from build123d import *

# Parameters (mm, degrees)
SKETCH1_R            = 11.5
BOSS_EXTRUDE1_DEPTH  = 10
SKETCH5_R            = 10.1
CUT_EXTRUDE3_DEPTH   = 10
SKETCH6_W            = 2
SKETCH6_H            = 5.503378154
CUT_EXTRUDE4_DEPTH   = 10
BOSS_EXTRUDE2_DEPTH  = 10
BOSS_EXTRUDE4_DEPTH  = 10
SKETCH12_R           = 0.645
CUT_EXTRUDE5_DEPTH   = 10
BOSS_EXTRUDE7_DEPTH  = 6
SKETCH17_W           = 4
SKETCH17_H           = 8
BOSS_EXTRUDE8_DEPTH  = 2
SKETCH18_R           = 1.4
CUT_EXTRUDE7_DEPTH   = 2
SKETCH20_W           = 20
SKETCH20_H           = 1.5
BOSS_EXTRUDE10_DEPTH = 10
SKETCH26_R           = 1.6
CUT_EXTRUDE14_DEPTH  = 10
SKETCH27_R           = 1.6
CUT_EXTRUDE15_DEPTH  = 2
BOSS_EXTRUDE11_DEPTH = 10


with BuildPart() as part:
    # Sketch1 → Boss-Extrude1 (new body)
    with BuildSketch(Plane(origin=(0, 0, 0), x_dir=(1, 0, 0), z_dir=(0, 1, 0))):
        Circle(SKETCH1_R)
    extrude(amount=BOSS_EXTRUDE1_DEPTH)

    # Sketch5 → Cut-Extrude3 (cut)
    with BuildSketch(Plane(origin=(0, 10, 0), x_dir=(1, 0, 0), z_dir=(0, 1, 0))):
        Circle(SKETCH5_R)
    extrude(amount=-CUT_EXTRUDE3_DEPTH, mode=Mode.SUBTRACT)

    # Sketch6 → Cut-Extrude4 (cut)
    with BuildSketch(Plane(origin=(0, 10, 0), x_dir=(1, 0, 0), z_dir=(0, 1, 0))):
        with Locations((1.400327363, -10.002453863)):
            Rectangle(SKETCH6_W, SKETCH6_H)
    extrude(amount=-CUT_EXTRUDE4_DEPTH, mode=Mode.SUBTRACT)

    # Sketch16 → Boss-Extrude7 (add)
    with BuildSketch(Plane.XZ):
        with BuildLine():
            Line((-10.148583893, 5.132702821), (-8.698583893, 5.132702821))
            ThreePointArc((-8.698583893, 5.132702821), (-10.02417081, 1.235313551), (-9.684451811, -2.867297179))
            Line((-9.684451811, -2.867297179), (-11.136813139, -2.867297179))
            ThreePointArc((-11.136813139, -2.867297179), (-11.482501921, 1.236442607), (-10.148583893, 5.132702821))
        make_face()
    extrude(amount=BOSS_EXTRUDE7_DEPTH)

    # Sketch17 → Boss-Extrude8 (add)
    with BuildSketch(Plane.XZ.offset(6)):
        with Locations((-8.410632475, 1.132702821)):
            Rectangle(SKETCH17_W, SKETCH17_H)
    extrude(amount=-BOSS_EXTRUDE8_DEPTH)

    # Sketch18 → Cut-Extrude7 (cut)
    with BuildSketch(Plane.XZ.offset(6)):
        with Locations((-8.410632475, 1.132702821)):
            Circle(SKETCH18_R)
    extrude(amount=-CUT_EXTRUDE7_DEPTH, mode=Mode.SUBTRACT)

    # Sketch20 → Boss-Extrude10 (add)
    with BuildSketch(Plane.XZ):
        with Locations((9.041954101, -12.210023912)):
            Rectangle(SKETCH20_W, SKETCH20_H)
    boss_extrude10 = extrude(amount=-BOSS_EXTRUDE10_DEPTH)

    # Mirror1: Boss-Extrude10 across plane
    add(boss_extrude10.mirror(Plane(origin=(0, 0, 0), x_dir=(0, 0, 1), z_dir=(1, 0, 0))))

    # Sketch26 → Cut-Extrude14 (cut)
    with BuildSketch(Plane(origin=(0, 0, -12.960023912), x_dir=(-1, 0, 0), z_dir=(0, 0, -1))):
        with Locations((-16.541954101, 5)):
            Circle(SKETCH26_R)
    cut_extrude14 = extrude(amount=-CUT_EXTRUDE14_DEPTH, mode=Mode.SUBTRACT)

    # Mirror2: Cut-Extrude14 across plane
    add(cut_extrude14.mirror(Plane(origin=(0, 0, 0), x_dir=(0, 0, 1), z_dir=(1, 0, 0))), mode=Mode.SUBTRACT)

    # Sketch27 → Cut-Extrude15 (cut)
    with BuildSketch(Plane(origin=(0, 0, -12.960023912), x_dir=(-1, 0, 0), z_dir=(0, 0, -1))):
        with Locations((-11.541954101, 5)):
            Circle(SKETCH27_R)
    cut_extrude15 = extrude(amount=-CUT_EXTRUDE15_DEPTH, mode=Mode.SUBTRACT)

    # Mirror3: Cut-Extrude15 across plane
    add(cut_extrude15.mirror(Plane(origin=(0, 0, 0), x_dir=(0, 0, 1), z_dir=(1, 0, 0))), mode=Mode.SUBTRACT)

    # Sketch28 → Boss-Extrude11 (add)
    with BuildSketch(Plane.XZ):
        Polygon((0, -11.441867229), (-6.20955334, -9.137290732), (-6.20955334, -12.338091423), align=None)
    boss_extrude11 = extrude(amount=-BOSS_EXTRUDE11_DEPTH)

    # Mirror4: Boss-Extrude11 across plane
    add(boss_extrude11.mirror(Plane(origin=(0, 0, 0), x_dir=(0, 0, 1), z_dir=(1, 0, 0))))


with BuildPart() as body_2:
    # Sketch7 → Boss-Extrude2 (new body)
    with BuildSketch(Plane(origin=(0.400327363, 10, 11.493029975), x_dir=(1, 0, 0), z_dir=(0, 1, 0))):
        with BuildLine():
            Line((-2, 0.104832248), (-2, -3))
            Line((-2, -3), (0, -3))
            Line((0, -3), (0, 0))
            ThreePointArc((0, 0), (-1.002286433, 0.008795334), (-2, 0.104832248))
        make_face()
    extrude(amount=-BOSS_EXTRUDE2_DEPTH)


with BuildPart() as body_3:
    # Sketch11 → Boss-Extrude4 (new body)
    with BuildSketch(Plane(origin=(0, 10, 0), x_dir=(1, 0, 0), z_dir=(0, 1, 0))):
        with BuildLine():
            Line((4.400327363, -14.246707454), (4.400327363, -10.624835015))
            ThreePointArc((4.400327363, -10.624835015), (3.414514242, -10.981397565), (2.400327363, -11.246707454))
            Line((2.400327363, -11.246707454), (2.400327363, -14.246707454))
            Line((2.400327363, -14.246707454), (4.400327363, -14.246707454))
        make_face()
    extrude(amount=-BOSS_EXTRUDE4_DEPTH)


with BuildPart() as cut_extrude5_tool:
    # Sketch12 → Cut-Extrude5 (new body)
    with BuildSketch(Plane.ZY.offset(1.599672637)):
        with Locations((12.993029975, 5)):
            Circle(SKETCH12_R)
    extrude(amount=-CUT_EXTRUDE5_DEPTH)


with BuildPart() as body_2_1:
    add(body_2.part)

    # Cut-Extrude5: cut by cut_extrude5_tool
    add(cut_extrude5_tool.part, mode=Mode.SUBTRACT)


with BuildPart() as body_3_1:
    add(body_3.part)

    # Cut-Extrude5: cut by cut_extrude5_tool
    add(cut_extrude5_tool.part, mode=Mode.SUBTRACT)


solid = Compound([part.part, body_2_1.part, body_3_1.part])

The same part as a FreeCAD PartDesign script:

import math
import FreeCAD as App
import Part
import Sketcher
from FreeCAD import Vector
Q = App.Units.Quantity

doc = App.newDocument("Part")
body = doc.addObject("PartDesign::Body", "Body")

# Sketch on XZ plane
sketch1 = body.newObject("Sketcher::SketchObject", "Sketch")
sketch1.AttachmentSupport = (doc.getObject("XZ_Plane"), [""])
sketch1.MapMode = "FlatFace"
sketch1.addGeometry(Part.Circle(Vector(0, 0, 0), Vector(0, 0, 1), 12), False)
sketch1.addConstraint([
    Sketcher.Constraint("Coincident", 0, 3, -1, 1),
    Sketcher.Constraint("Diameter", 0, Q("23 mm")),
])
pad1 = body.newObject("PartDesign::Pad", "Pad")
pad1.Profile = sketch1
pad1.Length = 10
pad1.Reversed = True

# Sketch on XZ plane
sketch2 = body.newObject("Sketcher::SketchObject", "Sketch001")
sketch2.AttachmentSupport = (doc.getObject("XZ_Plane"), [""])
sketch2.MapMode = "FlatFace"
sketch2.AttachmentOffset = App.Placement(Vector(0, 0, -10), App.Rotation())
sketch2.addGeometry(Part.Circle(Vector(0, 0, 0), Vector(0, 0, 1), 10), False)
sketch2.addConstraint([
    Sketcher.Constraint("Coincident", 0, 3, -1, 1),
    Sketcher.Constraint("Diameter", 0, Q("20.2 mm")),
])
pocket1 = body.newObject("PartDesign::Pocket", "Pocket")
pocket1.Profile = sketch2
pocket1.Length = 10
pocket1.Reversed = True

# Sketch on XZ plane
sketch3 = body.newObject("Sketcher::SketchObject", "Sketch002")
sketch3.AttachmentSupport = (doc.getObject("XZ_Plane"), [""])
sketch3.MapMode = "FlatFace"
sketch3.AttachmentOffset = App.Placement(Vector(0, 0, -10), App.Rotation())
sketch3.addGeometry([
    Part.LineSegment(Vector(0.4, 7.3, 0), Vector(0.4, 12.8, 0)),
    Part.LineSegment(Vector(0.4, 12.8, 0), Vector(2.4, 12.8, 0)),
    Part.LineSegment(Vector(2.4, 12.8, 0), Vector(2.4, 7.3, 0)),
    Part.LineSegment(Vector(2.4, 7.3, 0), Vector(0.4, 7.3, 0)),
], False)
sketch3.addConstraint([
    Sketcher.Constraint("Coincident", 0, 2, 1, 1),
    Sketcher.Constraint("Coincident", 1, 2, 2, 1),
    Sketcher.Constraint("Coincident", 2, 2, 3, 1),
    Sketcher.Constraint("Coincident", 3, 2, 0, 1),
    Sketcher.Constraint("Vertical", 0),
    Sketcher.Constraint("Horizontal", 1),
    Sketcher.Constraint("Vertical", 2),
    Sketcher.Constraint("Horizontal", 3),
    Sketcher.Constraint("DistanceX", 1, 1, 1, 2, Q("2 mm")),
    Sketcher.Constraint("DistanceY", 0, 1, 0, 2, Q("5.503378 mm")),
    Sketcher.Constraint("DistanceX", -1, 1, 0, 2, Q("0.400327 mm")),
    Sketcher.Constraint("DistanceY", -1, 1, 0, 2, Q("12.754143 mm")),
])
pocket2 = body.newObject("PartDesign::Pocket", "Pocket001")
pocket2.Profile = sketch3
pocket2.Length = 10
pocket2.Reversed = True

# Sketch on XZ plane
sketch4 = body.newObject("Sketcher::SketchObject", "Sketch003")
sketch4.AttachmentSupport = (doc.getObject("XZ_Plane"), [""])
sketch4.MapMode = "FlatFace"
sketch4.addGeometry([
    Part.LineSegment(Vector(-8.7, 5.1, 0), Vector(-10.1, 5.1, 0)),
    Part.ArcOfCircle(Part.Circle(Vector(-1.5, 0, 0), Vector(0, 0, 1), 10), math.radians(149), math.radians(197)),
    Part.LineSegment(Vector(-11.1, -2.9, 0), Vector(-9.7, -2.9, 0)),
    Part.ArcOfCircle(Part.Circle(Vector(0, 0, 0), Vector(0, 0, 1), 10.1), math.radians(149), math.radians(196)),
], False)
sketch4.addConstraint([
    Sketcher.Constraint("Coincident", 0, 2, 1, 1),
    Sketcher.Constraint("Coincident", 1, 2, 2, 1),
    Sketcher.Constraint("Coincident", 2, 2, 3, 2),
    Sketcher.Constraint("Coincident", 3, 1, 0, 1),
    Sketcher.Constraint("Horizontal", 0),
    Sketcher.Constraint("Horizontal", 2),
    Sketcher.Constraint("Coincident", 3, 3, -1, 1),
    Sketcher.Constraint("Radius", 3, Q("10.1 mm")),
    Sketcher.Constraint("DistanceY", 1, 2, 0, 2, Q("8 mm")),
    Sketcher.Constraint("DistanceX", 0, 2, 0, 1, Q("1.45 mm")),
    Sketcher.Constraint("Radius", 1, Q("10.021538 mm")),
    Sketcher.Constraint("DistanceX", 2, 1, 2, 2, Q("1.452361 mm")),
    Sketcher.Constraint("DistanceX", 2, 2, -1, 1, Q("9.684452 mm")),
])
pad2 = body.newObject("PartDesign::Pad", "Pad001")
pad2.Profile = sketch4
pad2.Length = 6

# Sketch on XZ plane
sketch5 = body.newObject("Sketcher::SketchObject", "Sketch004")
sketch5.AttachmentSupport = (doc.getObject("XZ_Plane"), [""])
sketch5.MapMode = "FlatFace"
sketch5.AttachmentOffset = App.Placement(Vector(0, 0, 6), App.Rotation())
sketch5.addGeometry([
    Part.LineSegment(Vector(-10.4, 5.1, 0), Vector(-10.4, -2.9, 0)),
    Part.LineSegment(Vector(-10.4, -2.9, 0), Vector(-6.4, -2.9, 0)),
    Part.LineSegment(Vector(-6.4, -2.9, 0), Vector(-6.4, 5.1, 0)),
    Part.LineSegment(Vector(-6.4, 5.1, 0), Vector(-10.4, 5.1, 0)),
], False)
sketch5.addConstraint([
    Sketcher.Constraint("Coincident", 0, 2, 1, 1),
    Sketcher.Constraint("Coincident", 1, 2, 2, 1),
    Sketcher.Constraint("Coincident", 2, 2, 3, 1),
    Sketcher.Constraint("Coincident", 3, 2, 0, 1),
    Sketcher.Constraint("Vertical", 0),
    Sketcher.Constraint("Horizontal", 1),
    Sketcher.Constraint("Vertical", 2),
    Sketcher.Constraint("Horizontal", 3),
    Sketcher.Constraint("DistanceX", 1, 1, 1, 2, Q("4 mm")),
    Sketcher.Constraint("DistanceY", 0, 2, 0, 1, Q("8 mm")),
    Sketcher.Constraint("DistanceX", 0, 2, -1, 1, Q("10.410632 mm")),
    Sketcher.Constraint("DistanceY", 0, 2, -1, 1, Q("2.867297 mm")),
])
pad3 = body.newObject("PartDesign::Pad", "Pad002")
pad3.Profile = sketch5
pad3.Length = 2
pad3.Reversed = True

# Sketch on XZ plane
sketch6 = body.newObject("Sketcher::SketchObject", "Sketch005")
sketch6.AttachmentSupport = (doc.getObject("XZ_Plane"), [""])
sketch6.MapMode = "FlatFace"
sketch6.AttachmentOffset = App.Placement(Vector(0, 0, 6), App.Rotation())
sketch6.addGeometry(Part.Circle(Vector(-8.4, 1.1, 0), Vector(0, 0, 1), 1.4), False)
sketch6.addConstraint([
    Sketcher.Constraint("Diameter", 0, Q("2.8 mm")),
    Sketcher.Constraint("DistanceX", 0, 3, -1, 1, Q("8.410632 mm")),
    Sketcher.Constraint("DistanceY", -1, 1, 0, 3, Q("1.132703 mm")),
])
pocket3 = body.newObject("PartDesign::Pocket", "Pocket002")
pocket3.Profile = sketch6
pocket3.Length = 2

# Sketch on XZ plane
sketch7 = body.newObject("Sketcher::SketchObject", "Sketch006")
sketch7.AttachmentSupport = (doc.getObject("XZ_Plane"), [""])
sketch7.MapMode = "FlatFace"
sketch7.addGeometry([
    Part.LineSegment(Vector(-1, -11.5, 0), Vector(-1, -13, 0)),
    Part.LineSegment(Vector(-1, -13, 0), Vector(19, -13, 0)),
    Part.LineSegment(Vector(19, -13, 0), Vector(19, -11.5, 0)),
    Part.LineSegment(Vector(19, -11.5, 0), Vector(-1, -11.5, 0)),
], False)
sketch7.addConstraint([
    Sketcher.Constraint("Coincident", 0, 2, 1, 1),
    Sketcher.Constraint("Coincident", 1, 2, 2, 1),
    Sketcher.Constraint("Coincident", 2, 2, 3, 1),
    Sketcher.Constraint("Coincident", 3, 2, 0, 1),
    Sketcher.Constraint("Vertical", 0),
    Sketcher.Constraint("Horizontal", 1),
    Sketcher.Constraint("Vertical", 2),
    Sketcher.Constraint("Horizontal", 3),
    Sketcher.Constraint("DistanceX", 1, 1, 1, 2, Q("20 mm")),
    Sketcher.Constraint("DistanceY", 0, 2, 0, 1, Q("1.5 mm")),
    Sketcher.Constraint("DistanceX", 0, 2, -1, 1, Q("0.958046 mm")),
    Sketcher.Constraint("DistanceY", 0, 2, -1, 1, Q("12.960024 mm")),
])
pad4 = body.newObject("PartDesign::Pad", "Pad003")
pad4.Profile = sketch7
pad4.Length = 10
pad4.Reversed = True
doc.recompute()

mirrored = body.newObject("PartDesign::Mirrored", "Mirrored")
mirrored.Originals = [pad4]
mirrored.MirrorPlane = (doc.getObject("YZ_Plane"), [""])
body.Tip = mirrored

# Sketch on XY plane
sketch8 = body.newObject("Sketcher::SketchObject", "Sketch007")
sketch8.AttachmentSupport = (doc.getObject("XY_Plane"), [""])
sketch8.MapMode = "FlatFace"
sketch8.AttachmentOffset = App.Placement(Vector(0, 0, -12.960024), App.Rotation())
sketch8.addGeometry(Part.Circle(Vector(16.5, 5, 0), Vector(0, 0, 1), 1.6), False)
sketch8.addConstraint([
    Sketcher.Constraint("Diameter", 0, Q("3.2 mm")),
    Sketcher.Constraint("DistanceY", -1, 1, 0, 3, Q("5 mm")),
    Sketcher.Constraint("DistanceX", -1, 1, 0, 3, Q("16.541954 mm")),
])
pocket4 = body.newObject("PartDesign::Pocket", "Pocket003")
pocket4.Profile = sketch8
pocket4.Length = 10
pocket4.Reversed = True
doc.recompute()

mirrored2 = body.newObject("PartDesign::Mirrored", "Mirrored001")
mirrored2.Originals = [pocket4]
mirrored2.MirrorPlane = (doc.getObject("YZ_Plane"), [""])
body.Tip = mirrored2

# Sketch on XY plane
sketch9 = body.newObject("Sketcher::SketchObject", "Sketch008")
sketch9.AttachmentSupport = (doc.getObject("XY_Plane"), [""])
sketch9.MapMode = "FlatFace"
sketch9.AttachmentOffset = App.Placement(Vector(0, 0, -12.960024), App.Rotation())
sketch9.addGeometry(Part.Circle(Vector(11.5, 5, 0), Vector(0, 0, 1), 1.6), False)
sketch9.addConstraint([
    Sketcher.Constraint("Diameter", 0, Q("3.2 mm")),
    Sketcher.Constraint("DistanceY", -1, 1, 0, 3, Q("5 mm")),
    Sketcher.Constraint("DistanceX", -1, 1, 0, 3, Q("11.541954 mm")),
])
pocket5 = body.newObject("PartDesign::Pocket", "Pocket004")
pocket5.Profile = sketch9
pocket5.Length = 2
pocket5.Reversed = True
doc.recompute()

mirrored3 = body.newObject("PartDesign::Mirrored", "Mirrored002")
mirrored3.Originals = [pocket5]
mirrored3.MirrorPlane = (doc.getObject("YZ_Plane"), [""])
body.Tip = mirrored3

# Sketch on XZ plane
sketch10 = body.newObject("Sketcher::SketchObject", "Sketch009")
sketch10.AttachmentSupport = (doc.getObject("XZ_Plane"), [""])
sketch10.MapMode = "FlatFace"
sketch10.addGeometry([
    Part.LineSegment(Vector(0, -11.4, 0), Vector(-6.2, -9.1, 0)),
    Part.LineSegment(Vector(-6.2, -9.1, 0), Vector(-6.2, -12.3, 0)),
    Part.LineSegment(Vector(-6.2, -12.3, 0), Vector(0, -11.4, 0)),
], False)
sketch10.addConstraint([
    Sketcher.Constraint("Coincident", 0, 2, 1, 1),
    Sketcher.Constraint("Coincident", 1, 2, 2, 1),
    Sketcher.Constraint("Coincident", 2, 2, 0, 1),
    Sketcher.Constraint("Vertical", 1),
    Sketcher.Constraint("PointOnObject", 2, 2, -2),
    Sketcher.Constraint("DistanceY", 1, 2, 1, 1, Q("3.200801 mm")),
    Sketcher.Constraint("DistanceY", 0, 2, -1, 1, Q("9.137291 mm")),
    Sketcher.Constraint("Distance", 0, Q("6.623415 mm")),
    Sketcher.Constraint("Distance", 2, Q("6.273896 mm")),
])
pad5 = body.newObject("PartDesign::Pad", "Pad004")
pad5.Profile = sketch10
pad5.Length = 10
pad5.Reversed = True
doc.recompute()

mirrored4 = body.newObject("PartDesign::Mirrored", "Mirrored003")
mirrored4.Originals = [pad5]
mirrored4.MirrorPlane = (doc.getObject("YZ_Plane"), [""])
body.Tip = mirrored4
body2 = doc.addObject("PartDesign::Body", "Body001")

# Sketch on XZ plane
sketch11 = body2.newObject("Sketcher::SketchObject", "Sketch010")
sketch11.AttachmentSupport = (doc.getObject("XZ_Plane001"), [""])
sketch11.MapMode = "FlatFace"
sketch11.AttachmentOffset = App.Placement(Vector(0, 0, -10), App.Rotation())
sketch11.addGeometry([
    Part.LineSegment(Vector(-1.6, 11.4, 0), Vector(-1.6, 14.5, 0)),
    Part.LineSegment(Vector(-1.6, 14.5, 0), Vector(0.4, 14.5, 0)),
    Part.LineSegment(Vector(0.4, 14.5, 0), Vector(0.4, 11.5, 0)),
    Part.ArcOfCircle(Part.Circle(Vector(0, 0, 0), Vector(0, 0, 1), 11.5), math.radians(88.01), math.radians(98)),
], False)
sketch11.addConstraint([
    Sketcher.Constraint("Coincident", 0, 2, 1, 1),
    Sketcher.Constraint("Coincident", 1, 2, 2, 1),
    Sketcher.Constraint("Coincident", 2, 2, 3, 1),
    Sketcher.Constraint("Coincident", 3, 2, 0, 1),
    Sketcher.Constraint("Vertical", 0),
    Sketcher.Constraint("Horizontal", 1),
    Sketcher.Constraint("Vertical", 2),
    Sketcher.Constraint("Coincident", 3, 3, -1, 1),
    Sketcher.Constraint("Radius", 3, Q("11.5 mm")),
    Sketcher.Constraint("DistanceX", 1, 1, 1, 2, Q("2 mm")),
    Sketcher.Constraint("DistanceY", 2, 2, 2, 1, Q("3 mm")),
    Sketcher.Constraint("DistanceY", 0, 1, 0, 2, Q("3.104832 mm")),
])
pad6 = body2.newObject("PartDesign::Pad", "Pad005")
pad6.Profile = sketch11
pad6.Length = 10
body3 = doc.addObject("PartDesign::Body", "Body002")

# Sketch on XZ plane
sketch12 = body3.newObject("Sketcher::SketchObject", "Sketch011")
sketch12.AttachmentSupport = (doc.getObject("XZ_Plane002"), [""])
sketch12.MapMode = "FlatFace"
sketch12.AttachmentOffset = App.Placement(Vector(0, 0, -10), App.Rotation())
sketch12.addGeometry([
    Part.LineSegment(Vector(4.4, 14.2, 0), Vector(4.4, 10.6, 0)),
    Part.ArcOfCircle(Part.Circle(Vector(0, 0, 0), Vector(0, 0, 1), 11.5), math.radians(67.5), math.radians(77.95)),
    Part.LineSegment(Vector(2.4, 11.2, 0), Vector(2.4, 14.2, 0)),
    Part.LineSegment(Vector(2.4, 14.2, 0), Vector(4.4, 14.2, 0)),
], False)
sketch12.addConstraint([
    Sketcher.Constraint("Coincident", 0, 2, 1, 1),
    Sketcher.Constraint("Coincident", 1, 2, 2, 1),
    Sketcher.Constraint("Coincident", 2, 2, 3, 1),
    Sketcher.Constraint("Coincident", 3, 2, 0, 1),
    Sketcher.Constraint("Vertical", 0),
    Sketcher.Constraint("Vertical", 2),
    Sketcher.Constraint("Horizontal", 3),
    Sketcher.Constraint("Coincident", 1, 3, -1, 1),
    Sketcher.Constraint("Radius", 1, Q("11.5 mm")),
    Sketcher.Constraint("DistanceX", 3, 1, 3, 2, Q("2 mm")),
    Sketcher.Constraint("DistanceY", 2, 1, 2, 2, Q("3 mm")),
    Sketcher.Constraint("DistanceY", 0, 2, 0, 1, Q("3.621872 mm")),
])
pad7 = body3.newObject("PartDesign::Pad", "Pad006")
pad7.Profile = sketch12
pad7.Length = 10
body4 = doc.addObject("PartDesign::Body", "Body003")

# Sketch on YZ plane
sketch13 = body4.newObject("Sketcher::SketchObject", "Sketch012")
sketch13.AttachmentSupport = (doc.getObject("YZ_Plane003"), [""])
sketch13.MapMode = "FlatFace"
sketch13.AttachmentOffset = App.Placement(Vector(0, 0, -1.599673), App.Rotation())
sketch13.addGeometry(Part.Circle(Vector(5, 13, 0), Vector(0, 0, 1), 0.6), False)
sketch13.addConstraint([
    Sketcher.Constraint("Diameter", 0, Q("1.29 mm")),
    Sketcher.Constraint("DistanceX", -1, 1, 0, 3, Q("5 mm")),
    Sketcher.Constraint("DistanceY", -1, 1, 0, 3, Q("12.99303 mm")),
])
pad8 = body4.newObject("PartDesign::Pad", "Pad007")
pad8.Profile = sketch13
pad8.Length = 10
doc.recompute()

body5 = doc.addObject("PartDesign::Body", "Body004")
body5.BaseFeature = body4
boolean = body2.newObject("PartDesign::Boolean", "Boolean")
boolean.Type = "Cut"
boolean.addObjects([body5])
doc.recompute()

boolean2 = body3.newObject("PartDesign::Boolean", "Boolean001")
boolean2.Type = "Cut"
boolean2.addObjects([body4])

doc.recompute()
